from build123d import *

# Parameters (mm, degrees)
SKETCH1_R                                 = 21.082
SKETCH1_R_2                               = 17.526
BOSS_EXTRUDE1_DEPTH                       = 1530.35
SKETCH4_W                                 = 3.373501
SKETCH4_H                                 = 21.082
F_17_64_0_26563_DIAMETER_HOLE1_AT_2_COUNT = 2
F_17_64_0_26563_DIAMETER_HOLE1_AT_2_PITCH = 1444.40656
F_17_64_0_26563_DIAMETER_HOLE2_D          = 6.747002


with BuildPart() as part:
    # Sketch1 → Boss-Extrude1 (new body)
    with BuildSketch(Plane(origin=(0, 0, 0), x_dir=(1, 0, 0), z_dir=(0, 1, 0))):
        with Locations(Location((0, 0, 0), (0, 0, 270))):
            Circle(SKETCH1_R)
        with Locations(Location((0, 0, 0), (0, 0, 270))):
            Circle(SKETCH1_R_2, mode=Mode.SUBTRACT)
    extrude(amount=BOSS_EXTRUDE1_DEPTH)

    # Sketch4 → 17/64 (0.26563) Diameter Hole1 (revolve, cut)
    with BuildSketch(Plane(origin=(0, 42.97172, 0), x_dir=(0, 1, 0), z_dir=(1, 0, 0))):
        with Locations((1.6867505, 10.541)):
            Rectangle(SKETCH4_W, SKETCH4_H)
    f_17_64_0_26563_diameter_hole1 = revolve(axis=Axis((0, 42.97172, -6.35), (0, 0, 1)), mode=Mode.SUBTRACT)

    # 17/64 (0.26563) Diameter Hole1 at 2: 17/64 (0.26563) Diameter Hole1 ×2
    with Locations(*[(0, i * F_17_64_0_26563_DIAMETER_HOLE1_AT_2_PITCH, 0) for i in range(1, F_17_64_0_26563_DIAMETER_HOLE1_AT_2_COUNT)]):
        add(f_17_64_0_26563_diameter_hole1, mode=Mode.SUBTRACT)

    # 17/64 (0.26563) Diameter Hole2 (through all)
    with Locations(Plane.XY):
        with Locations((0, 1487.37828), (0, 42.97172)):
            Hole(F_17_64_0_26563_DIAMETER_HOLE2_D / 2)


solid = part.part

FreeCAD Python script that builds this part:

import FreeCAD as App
import Part
import Sketcher
Q = App.Units.Quantity

doc = App.newDocument("Part")
params = doc.addObject("Spreadsheet::Sheet", "Params")
for row, (alias, value) in enumerate([
    ("sketch1_diameter", "1.66 in"),
    ("sketch1_diameter2", "1.38 in"),
    ("pad1_length", "60.25 in"),
    ("sketch2_height", "0.83 in"),
    ("groove_angle", "360 deg"),
    ("linearpattern_pitch", "56.8664 in"),
    ("hole_diameter", "6.747002 mm"),
], start=1):
    params.set(f"A{row}", alias)
    params.set(f"B{row}", "=" + value)
    params.setAlias(f"B{row}", alias)

body = doc.addObject("PartDesign::Body", "Body")

# Sketch on XZ plane
sketch1 = doc.addObject("Sketcher::SketchObject", "Sketch")
body.addObject(sketch1)
sketch1.AttachmentSupport = (doc.XZ_Plane, [""])
sketch1.MapMode = "FlatFace"
sketch1.addGeometry([
    Part.Circle(App.Vector(0, 0, 0), App.Vector(0, 0, 1), 21.082),
    Part.Circle(App.Vector(0, 0, 0), App.Vector(0, 0, 1), 17.526),
], False)
sketch1.addConstraint([
    Sketcher.Constraint("Coincident", 0, 3, -1, 1),
    Sketcher.Constraint("Coincident", 1, 3, -1, 1),
    Sketcher.Constraint("Diameter", 0, Q("1.66 in")),
    Sketcher.Constraint("Diameter", 1, Q("1.38 in")),
])
sketch1.setExpression("Constraints[2]", "Params.sketch1_diameter")
sketch1.setExpression("Constraints[3]", "Params.sketch1_diameter2")
pad1 = doc.addObject("PartDesign::Pad", "Pad")
body.addObject(pad1)
pad1.Profile = sketch1
pad1.setExpression("Length", "Params.pad1_length")
pad1.Reversed = True

# Sketch on YZ plane
sketch2 = doc.addObject("Sketcher::SketchObject", "Sketch001")
body.addObject(sketch2)
sketch2.AttachmentSupport = (doc.YZ_Plane, [""])
sketch2.MapMode = "FlatFace"
sketch2.addGeometry([
    Part.LineSegment(App.Vector(42.97172, 21.082, 0), App.Vector(42.97172, 0, 0)),
    Part.LineSegment(App.Vector(42.97172, 0, 0), App.Vector(46.345221, 0, 0)),
    Part.LineSegment(App.Vector(46.345221, 0, 0), App.Vector(46.345221, 21.082, 0)),
    Part.LineSegment(App.Vector(46.345221, 21.082, 0), App.Vector(42.97172, 21.082, 0)),
], False)
sketch2.addGeometry(Part.LineSegment(App.Vector(42.97172, 0, 0), App.Vector(42.97172, 21.082, 0)), True)  # axis
sketch2.addConstraint([
    Sketcher.Constraint("Coincident", 0, 2, 1, 1),
    Sketcher.Constraint("Coincident", 1, 2, 2, 1),
    Sketcher.Constraint("Coincident", 2, 2, 3, 1),
    Sketcher.Constraint("Coincident", 3, 2, 0, 1),
    Sketcher.Constraint("Vertical", 0),
    Sketcher.Constraint("Horizontal", 1),
    Sketcher.Constraint("Vertical", 2),
    Sketcher.Constraint("Horizontal", 3),
    Sketcher.Constraint("Vertical", 4),
    Sketcher.Constraint("Coincident", 4, 1, 0, 2),
    Sketcher.Constraint("PointOnObject", 0, 2, -1),
    Sketcher.Constraint("Horizontal", 2, 2, 4, 2),
    Sketcher.Constraint("DistanceY", 0, 2, 0, 1, Q("0.83 in")),
    Sketcher.Constraint("DistanceX", 1, 1, 1, 2, Q("3.373501 mm")),
    Sketcher.Constraint("DistanceX", -1, 1, 0, 2, Q("1.6918 in")),
])
sketch2.setExpression("Constraints[12]", "Params.sketch2_height")
groove = doc.addObject("PartDesign::Groove", "Groove")
body.addObject(groove)
groove.Profile = sketch2
groove.ReferenceAxis = (sketch2, ["Axis0"])
groove.setExpression("Angle", "Params.groove_angle")
doc.recompute()

linearpattern = doc.addObject("PartDesign::LinearPattern", "LinearPattern")
body.addObject(linearpattern)
linearpattern.Originals = [groove]
linearpattern.Direction = (doc.Y_Axis, [""])
linearpattern.Mode = "offset"
linearpattern.setExpression("Offset", "Params.linearpattern_pitch")
linearpattern.Occurrences = 2
body.Tip = linearpattern

# Sketch on XY plane
sketch3 = doc.addObject("Sketcher::SketchObject", "Sketch002")
body.addObject(sketch3)
sketch3.AttachmentSupport = (doc.XY_Plane, [""])
sketch3.MapMode = "FlatFace"
sketch3.addGeometry([
    Part.Circle(App.Vector(0, 1487.37828, 0), App.Vector(0, 0, 1), 3.373501),
    Part.Circle(App.Vector(0, 42.97172, 0), App.Vector(0, 0, 1), 3.373501),
], False)
sketch3.addConstraint([
    Sketcher.Constraint("Equal", 0, 1),
    Sketcher.Constraint("PointOnObject", 0, 3, -2),
    Sketcher.Constraint("PointOnObject", 1, 3, -2),
    Sketcher.Constraint("Diameter", 0, Q("6.747002 mm")),
    Sketcher.Constraint("DistanceY", -1, 1, 0, 3, Q("58.5582 in")),
    Sketcher.Constraint("DistanceY", -1, 1, 1, 3, Q("1.6918 in")),
])
doc.recompute()
hole = doc.addObject("PartDesign::Hole", "Hole")
body.addObject(hole)
hole.Profile = sketch3
hole.ThreadType = "None"
hole.setExpression("Diameter", "Params.hole_diameter")
hole.DepthType = "ThroughAll"

doc.recompute()
